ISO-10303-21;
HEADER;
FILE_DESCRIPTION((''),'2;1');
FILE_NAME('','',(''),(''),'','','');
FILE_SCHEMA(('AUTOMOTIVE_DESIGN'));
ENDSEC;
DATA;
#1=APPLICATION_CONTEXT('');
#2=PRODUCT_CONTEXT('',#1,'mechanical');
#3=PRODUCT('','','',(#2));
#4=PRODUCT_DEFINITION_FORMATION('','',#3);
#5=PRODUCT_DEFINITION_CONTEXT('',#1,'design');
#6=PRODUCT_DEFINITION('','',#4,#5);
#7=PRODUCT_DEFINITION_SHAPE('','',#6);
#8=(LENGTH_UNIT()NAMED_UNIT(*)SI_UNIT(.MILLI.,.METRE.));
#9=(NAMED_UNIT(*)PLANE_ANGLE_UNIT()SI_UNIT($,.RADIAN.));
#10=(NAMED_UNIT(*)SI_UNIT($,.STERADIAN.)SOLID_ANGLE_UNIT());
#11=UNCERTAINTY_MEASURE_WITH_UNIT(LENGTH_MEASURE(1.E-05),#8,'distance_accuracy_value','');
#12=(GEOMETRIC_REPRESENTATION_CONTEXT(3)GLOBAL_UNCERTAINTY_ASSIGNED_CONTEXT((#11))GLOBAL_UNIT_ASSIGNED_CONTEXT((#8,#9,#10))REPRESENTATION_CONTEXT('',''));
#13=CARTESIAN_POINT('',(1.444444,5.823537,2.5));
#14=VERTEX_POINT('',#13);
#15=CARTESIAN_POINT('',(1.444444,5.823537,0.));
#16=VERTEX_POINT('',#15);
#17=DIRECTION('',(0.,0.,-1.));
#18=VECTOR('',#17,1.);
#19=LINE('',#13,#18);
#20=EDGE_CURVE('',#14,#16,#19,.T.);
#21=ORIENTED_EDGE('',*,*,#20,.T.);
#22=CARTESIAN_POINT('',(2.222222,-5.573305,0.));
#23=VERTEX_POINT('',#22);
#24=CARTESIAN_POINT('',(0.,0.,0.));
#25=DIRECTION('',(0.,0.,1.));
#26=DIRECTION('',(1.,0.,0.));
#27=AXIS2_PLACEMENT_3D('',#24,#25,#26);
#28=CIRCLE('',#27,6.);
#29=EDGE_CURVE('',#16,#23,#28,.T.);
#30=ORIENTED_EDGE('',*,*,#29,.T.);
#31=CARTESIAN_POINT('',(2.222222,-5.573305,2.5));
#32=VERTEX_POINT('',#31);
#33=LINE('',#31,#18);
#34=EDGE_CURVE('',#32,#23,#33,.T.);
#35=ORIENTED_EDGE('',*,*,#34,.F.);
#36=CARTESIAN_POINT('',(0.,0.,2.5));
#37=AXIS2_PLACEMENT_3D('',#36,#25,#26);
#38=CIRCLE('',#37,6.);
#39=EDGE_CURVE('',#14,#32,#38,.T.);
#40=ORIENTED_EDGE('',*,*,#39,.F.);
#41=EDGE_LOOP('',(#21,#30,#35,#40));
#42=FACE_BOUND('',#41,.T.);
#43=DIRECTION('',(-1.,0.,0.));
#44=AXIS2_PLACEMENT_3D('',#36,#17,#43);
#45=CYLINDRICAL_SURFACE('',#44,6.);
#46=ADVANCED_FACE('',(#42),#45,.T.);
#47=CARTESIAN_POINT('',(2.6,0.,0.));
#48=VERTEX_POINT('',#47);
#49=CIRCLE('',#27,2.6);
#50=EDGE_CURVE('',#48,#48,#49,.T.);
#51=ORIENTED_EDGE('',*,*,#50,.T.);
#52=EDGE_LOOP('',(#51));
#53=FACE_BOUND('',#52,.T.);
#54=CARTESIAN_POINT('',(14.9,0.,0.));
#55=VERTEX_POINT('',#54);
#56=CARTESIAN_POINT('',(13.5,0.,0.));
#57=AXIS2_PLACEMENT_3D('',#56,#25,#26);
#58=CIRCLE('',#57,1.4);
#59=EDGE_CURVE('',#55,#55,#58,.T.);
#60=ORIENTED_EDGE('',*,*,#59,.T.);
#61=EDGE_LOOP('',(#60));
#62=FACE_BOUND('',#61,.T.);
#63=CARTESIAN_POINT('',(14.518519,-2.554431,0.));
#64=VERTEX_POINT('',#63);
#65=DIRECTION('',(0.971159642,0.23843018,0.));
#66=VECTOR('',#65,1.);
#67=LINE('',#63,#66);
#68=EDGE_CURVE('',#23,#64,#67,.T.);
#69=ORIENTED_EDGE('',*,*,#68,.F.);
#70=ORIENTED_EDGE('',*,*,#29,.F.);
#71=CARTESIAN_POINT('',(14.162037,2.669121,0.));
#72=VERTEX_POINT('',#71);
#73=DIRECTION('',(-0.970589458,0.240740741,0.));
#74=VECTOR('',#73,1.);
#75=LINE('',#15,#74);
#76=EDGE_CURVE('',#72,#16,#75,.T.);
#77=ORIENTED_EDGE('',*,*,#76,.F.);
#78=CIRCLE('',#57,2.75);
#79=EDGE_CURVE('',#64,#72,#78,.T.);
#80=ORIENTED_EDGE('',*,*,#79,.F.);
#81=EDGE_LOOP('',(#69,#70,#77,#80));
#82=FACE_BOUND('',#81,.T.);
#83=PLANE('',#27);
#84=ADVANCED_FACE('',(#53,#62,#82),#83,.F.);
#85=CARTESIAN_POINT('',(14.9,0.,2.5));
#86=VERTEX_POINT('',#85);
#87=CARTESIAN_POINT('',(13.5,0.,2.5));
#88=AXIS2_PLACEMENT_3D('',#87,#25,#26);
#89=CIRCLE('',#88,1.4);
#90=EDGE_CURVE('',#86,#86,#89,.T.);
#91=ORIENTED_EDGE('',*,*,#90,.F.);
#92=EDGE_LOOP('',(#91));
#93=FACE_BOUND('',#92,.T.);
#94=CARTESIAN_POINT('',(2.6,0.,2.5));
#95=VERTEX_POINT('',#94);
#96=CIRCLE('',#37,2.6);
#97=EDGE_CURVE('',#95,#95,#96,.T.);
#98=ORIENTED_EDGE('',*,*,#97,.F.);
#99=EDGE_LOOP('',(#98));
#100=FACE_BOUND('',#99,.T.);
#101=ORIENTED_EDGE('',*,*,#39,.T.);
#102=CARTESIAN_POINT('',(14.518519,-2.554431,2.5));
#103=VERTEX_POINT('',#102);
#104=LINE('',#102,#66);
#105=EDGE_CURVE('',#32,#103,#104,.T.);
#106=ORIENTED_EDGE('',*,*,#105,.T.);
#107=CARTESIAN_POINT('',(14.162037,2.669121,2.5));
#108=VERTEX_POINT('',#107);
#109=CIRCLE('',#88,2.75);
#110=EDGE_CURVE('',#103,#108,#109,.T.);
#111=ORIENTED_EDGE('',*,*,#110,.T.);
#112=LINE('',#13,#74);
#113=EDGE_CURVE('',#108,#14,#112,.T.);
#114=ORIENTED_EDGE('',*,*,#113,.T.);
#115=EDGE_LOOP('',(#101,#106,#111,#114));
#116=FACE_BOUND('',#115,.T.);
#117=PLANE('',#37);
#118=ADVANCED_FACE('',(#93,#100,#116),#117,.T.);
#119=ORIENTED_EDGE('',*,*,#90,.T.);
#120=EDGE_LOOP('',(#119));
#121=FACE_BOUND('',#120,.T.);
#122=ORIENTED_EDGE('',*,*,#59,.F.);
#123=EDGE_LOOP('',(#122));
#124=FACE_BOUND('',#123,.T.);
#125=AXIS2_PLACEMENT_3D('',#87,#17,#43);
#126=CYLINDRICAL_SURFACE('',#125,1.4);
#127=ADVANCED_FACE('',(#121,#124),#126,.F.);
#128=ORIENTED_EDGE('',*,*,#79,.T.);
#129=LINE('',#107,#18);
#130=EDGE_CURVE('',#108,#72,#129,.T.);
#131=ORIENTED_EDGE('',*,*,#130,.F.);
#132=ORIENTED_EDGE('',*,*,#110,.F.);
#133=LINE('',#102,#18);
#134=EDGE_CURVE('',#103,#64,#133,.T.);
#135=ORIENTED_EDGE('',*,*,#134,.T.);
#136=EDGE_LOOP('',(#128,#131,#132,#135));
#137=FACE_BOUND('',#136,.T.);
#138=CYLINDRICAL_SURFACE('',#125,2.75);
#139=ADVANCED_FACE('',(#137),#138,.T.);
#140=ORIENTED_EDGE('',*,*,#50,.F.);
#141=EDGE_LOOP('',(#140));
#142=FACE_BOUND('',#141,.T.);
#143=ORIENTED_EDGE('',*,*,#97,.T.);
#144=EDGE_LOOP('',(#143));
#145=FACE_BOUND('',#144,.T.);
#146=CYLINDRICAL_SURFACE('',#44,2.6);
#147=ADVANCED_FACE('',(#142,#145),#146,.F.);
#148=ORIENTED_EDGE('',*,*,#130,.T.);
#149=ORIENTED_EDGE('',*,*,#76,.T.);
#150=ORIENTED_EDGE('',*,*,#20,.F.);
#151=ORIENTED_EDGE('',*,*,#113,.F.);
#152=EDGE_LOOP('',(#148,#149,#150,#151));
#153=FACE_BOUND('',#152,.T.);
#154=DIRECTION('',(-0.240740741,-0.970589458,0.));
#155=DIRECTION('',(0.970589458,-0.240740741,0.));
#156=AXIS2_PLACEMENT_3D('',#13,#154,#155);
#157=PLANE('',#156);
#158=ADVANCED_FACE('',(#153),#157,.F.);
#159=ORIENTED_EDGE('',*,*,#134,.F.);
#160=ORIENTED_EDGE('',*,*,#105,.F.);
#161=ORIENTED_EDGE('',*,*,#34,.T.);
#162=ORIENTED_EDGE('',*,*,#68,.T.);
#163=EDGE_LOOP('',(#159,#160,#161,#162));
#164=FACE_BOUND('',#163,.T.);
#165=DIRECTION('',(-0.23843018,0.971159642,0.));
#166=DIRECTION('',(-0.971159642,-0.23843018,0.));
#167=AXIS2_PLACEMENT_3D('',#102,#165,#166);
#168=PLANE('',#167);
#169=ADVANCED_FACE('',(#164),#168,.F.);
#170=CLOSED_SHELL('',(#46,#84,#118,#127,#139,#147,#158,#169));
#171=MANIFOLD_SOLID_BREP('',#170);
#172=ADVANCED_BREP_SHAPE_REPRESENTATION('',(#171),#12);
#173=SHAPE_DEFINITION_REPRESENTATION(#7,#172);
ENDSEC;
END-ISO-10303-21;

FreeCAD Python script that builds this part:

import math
import FreeCAD as App
import Part
import Sketcher

V = App.Vector

doc = App.newDocument("Part")
params = doc.addObject("Spreadsheet::Sheet", "Params")
for row, (alias, value) in enumerate([
    ("sketch1_radius", "6 mm"),
    ("sketch1_diameter", "2.8 mm"),
    ("sketch1_diameter2", "5.2 mm"),
    ("sketch1_radius2", "2.75 mm"),
    ("pad1_length", "2.5 mm"),
], start=1):
    params.set(f"A{row}", alias)
    params.set(f"B{row}", "=" + value)
    params.setAlias(f"B{row}", alias)

body = doc.addObject("PartDesign::Body", "Body")

# Sketch on XY plane
sketch1 = body.newObject("Sketcher::SketchObject", "Sketch")
sketch1.AttachmentSupport = (doc.getObject("XY_Plane"), [""])
sketch1.MapMode = "FlatFace"
sketch1.addGeometry(Part.LineSegment(V(14.2, 2.7, 0), V(1.4, 5.8, 0)), False)
sketch1.addGeometry(Part.ArcOfCircle(Part.Circle(V(0, 0, 0), V(0, 0, 1), 6), math.radians(76), math.radians(292)), False)
sketch1.addGeometry(Part.LineSegment(V(2.2, -5.6, 0), V(14.5, -2.6, 0)), False)
sketch1.addGeometry(Part.ArcOfCircle(Part.Circle(V(13.5, 0, 0), V(0, 0, 1), 2.8), math.radians(-68), math.radians(76)), False)
sketch1.addGeometry(Part.Circle(V(13.5, 0, 0), V(0, 0, 1), 1.4), False)
sketch1.addGeometry(Part.Circle(V(0, 0, 0), V(0, 0, 1), 2.6), False)
sketch1.addConstraint(Sketcher.Constraint("Tangent", 0, 2, 1, 1))
sketch1.addConstraint(Sketcher.Constraint("Coincident", 1, 2, 2, 1))
sketch1.addConstraint(Sketcher.Constraint("Coincident", 2, 2, 3, 1))
sketch1.addConstraint(Sketcher.Constraint("Tangent", 3, 2, 0, 1))
sketch1.addConstraint(Sketcher.Constraint("Coincident", 1, 3, -1, 1))
sketch1.addConstraint(Sketcher.Constraint("Coincident", 5, 3, -1, 1))
sketch1.addConstraint(Sketcher.Constraint("Coincident", 4, 3, 3, 3))
sketch1.addConstraint(Sketcher.Constraint("PointOnObject", 3, 3, -1))
sketch1.addConstraint(Sketcher.Constraint("Radius", 1, 6.0))
sketch1.addConstraint(Sketcher.Constraint("Diameter", 4, 2.8))
sketch1.addConstraint(Sketcher.Constraint("Diameter", 5, 5.2))
sketch1.addConstraint(Sketcher.Constraint("Radius", 3, 2.75))
sketch1.addConstraint(Sketcher.Constraint("DistanceX", -1, 1, 3, 3, 13.5))
sketch1.addConstraint(Sketcher.Constraint("DistanceX", -1, 1, 2, 2, 14.518519))
sketch1.addConstraint(Sketcher.Constraint("DistanceY", 1, 2, 0, 2, 11.396842))
sketch1.setExpression("Constraints[8]", "Params.sketch1_radius")
sketch1.setExpression("Constraints[9]", "Params.sketch1_diameter")
sketch1.setExpression("Constraints[10]", "Params.sketch1_diameter2")
sketch1.setExpression("Constraints[11]", "Params.sketch1_radius2")
pad1 = body.newObject("PartDesign::Pad", "Pad")
pad1.Profile = sketch1
pad1.setExpression("Length", "Params.pad1_length")

doc.recompute()
